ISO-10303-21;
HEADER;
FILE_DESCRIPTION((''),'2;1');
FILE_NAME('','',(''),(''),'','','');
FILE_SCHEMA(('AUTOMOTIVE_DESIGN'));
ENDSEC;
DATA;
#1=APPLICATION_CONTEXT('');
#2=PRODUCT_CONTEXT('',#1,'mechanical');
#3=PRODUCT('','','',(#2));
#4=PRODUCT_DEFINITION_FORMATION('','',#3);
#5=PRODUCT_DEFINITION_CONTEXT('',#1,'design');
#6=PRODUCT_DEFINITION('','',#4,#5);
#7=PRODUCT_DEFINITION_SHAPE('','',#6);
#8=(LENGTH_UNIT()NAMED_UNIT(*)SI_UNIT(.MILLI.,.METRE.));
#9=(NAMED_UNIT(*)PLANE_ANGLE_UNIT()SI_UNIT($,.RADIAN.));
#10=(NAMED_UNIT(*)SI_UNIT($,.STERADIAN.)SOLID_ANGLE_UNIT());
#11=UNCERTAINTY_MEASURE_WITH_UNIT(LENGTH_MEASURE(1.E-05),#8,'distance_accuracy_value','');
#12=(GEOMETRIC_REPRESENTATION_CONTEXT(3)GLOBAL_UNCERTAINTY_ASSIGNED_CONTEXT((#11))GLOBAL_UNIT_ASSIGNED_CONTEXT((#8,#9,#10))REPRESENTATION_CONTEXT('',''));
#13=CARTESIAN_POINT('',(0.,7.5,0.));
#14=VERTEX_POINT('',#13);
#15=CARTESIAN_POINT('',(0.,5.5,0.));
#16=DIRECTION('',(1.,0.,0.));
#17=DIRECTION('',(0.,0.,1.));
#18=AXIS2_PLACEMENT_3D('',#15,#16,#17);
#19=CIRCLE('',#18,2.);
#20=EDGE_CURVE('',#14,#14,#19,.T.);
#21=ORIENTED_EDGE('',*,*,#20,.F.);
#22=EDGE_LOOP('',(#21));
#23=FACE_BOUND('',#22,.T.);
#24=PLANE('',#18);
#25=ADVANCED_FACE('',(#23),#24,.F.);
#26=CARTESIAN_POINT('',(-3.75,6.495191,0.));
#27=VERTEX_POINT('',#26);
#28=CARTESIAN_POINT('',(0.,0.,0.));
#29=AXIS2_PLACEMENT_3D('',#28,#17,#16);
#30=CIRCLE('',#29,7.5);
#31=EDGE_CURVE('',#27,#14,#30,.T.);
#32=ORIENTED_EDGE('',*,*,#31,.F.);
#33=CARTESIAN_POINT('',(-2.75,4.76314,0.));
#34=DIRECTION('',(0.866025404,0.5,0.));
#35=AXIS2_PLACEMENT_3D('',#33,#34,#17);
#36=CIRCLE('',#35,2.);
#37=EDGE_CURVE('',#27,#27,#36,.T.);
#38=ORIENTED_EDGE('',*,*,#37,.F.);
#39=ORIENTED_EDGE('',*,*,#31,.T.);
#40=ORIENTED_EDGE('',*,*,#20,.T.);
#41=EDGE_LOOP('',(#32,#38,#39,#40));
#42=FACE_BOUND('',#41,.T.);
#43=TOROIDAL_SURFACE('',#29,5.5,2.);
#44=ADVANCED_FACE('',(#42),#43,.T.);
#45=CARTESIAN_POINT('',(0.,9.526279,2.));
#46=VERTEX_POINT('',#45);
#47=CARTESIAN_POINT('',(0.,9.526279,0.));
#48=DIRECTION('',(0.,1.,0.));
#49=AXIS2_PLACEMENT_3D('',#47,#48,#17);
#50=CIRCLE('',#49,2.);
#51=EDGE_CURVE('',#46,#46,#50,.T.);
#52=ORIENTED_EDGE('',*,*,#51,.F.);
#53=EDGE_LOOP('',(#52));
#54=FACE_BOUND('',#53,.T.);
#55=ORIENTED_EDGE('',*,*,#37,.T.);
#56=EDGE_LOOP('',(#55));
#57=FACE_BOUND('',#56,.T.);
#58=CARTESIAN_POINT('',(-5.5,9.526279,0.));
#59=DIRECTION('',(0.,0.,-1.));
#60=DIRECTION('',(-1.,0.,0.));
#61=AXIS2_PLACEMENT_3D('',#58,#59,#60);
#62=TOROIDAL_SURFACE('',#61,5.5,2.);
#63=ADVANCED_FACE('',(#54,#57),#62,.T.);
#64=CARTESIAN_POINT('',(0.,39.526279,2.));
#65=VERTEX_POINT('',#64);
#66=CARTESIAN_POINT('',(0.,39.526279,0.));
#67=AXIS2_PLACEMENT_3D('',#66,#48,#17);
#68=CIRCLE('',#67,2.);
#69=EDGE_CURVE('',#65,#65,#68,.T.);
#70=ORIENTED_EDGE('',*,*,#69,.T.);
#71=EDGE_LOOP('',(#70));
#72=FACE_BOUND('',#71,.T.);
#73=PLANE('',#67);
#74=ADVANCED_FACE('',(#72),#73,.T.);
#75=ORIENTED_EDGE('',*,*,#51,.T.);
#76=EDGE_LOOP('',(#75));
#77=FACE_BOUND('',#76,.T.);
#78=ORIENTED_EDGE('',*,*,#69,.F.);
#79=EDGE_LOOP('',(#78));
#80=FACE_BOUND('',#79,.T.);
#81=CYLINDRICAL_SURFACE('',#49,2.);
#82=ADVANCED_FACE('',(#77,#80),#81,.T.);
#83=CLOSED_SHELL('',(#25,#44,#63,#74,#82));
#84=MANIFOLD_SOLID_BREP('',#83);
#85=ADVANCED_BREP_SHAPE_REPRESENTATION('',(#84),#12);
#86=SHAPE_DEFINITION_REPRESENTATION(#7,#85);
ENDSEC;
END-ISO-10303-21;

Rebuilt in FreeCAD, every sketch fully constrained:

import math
import FreeCAD as App
import Part
import Sketcher
Q = App.Units.Quantity

doc = App.newDocument("Part")
body = doc.addObject("PartDesign::Body", "Body")

# Sketch on XZ plane
sketch1 = doc.addObject("Sketcher::SketchObject", "Sketch")
body.addObject(sketch1)
sketch1.AttachmentSupport = (doc.XZ_Plane, [""])
sketch1.MapMode = "FlatFace"
sketch1.AttachmentOffset = App.Placement(App.Vector(0, 0, -39.526279), App.Rotation())
sketch1.addGeometry(Part.Circle(App.Vector(0, 0, 0), App.Vector(0, 0, 1), 2), False)
sketch1.addConstraint([
    Sketcher.Constraint("Coincident", 0, 3, -1, 1),
    Sketcher.Constraint("Diameter", 0, Q("4 mm")),
])

# Sketch on XY plane
sketch2 = doc.addObject("Sketcher::SketchObject", "Sketch001")
body.addObject(sketch2)
sketch2.AttachmentSupport = (doc.XY_Plane, [""])
sketch2.MapMode = "FlatFace"
sketch2.addGeometry([
    Part.LineSegment(App.Vector(0, 39.5, 0), App.Vector(0, 9.5, 0)),
    Part.ArcOfCircle(Part.Circle(App.Vector(-5.5, 9.5, 0), App.Vector(0, 0, 1), 5.5), math.radians(-60), math.radians(0)),
    Part.ArcOfCircle(Part.Circle(App.Vector(0, 0, 0), App.Vector(0, 0, 1), 5.5), math.radians(120), math.radians(450)),
], False)
sketch2.addConstraint([
    Sketcher.Constraint("Tangent", 0, 2, 1, 2),
    Sketcher.Constraint("Tangent", 1, 1, 2, 1),
    Sketcher.Constraint("Vertical", 0),
    Sketcher.Constraint("Coincident", 2, 3, -1, 1),
    Sketcher.Constraint("Equal", 1, 2),
    Sketcher.Constraint("PointOnObject", 0, 1, -2),
    Sketcher.Constraint("PointOnObject", 2, 2, -2),
    Sketcher.Constraint("Radius", 1, Q("5.5 mm")),
    Sketcher.Constraint("DistanceY", 0, 2, 0, 1, Q("30 mm")),
])
doc.recompute()

additivepipe = doc.addObject("PartDesign::AdditivePipe", "AdditivePipe")
body.addObject(additivepipe)
additivepipe.Profile = sketch1
additivepipe.Spine = (sketch2, ["Edge1", "Edge2", "Edge3"])

doc.recompute()
